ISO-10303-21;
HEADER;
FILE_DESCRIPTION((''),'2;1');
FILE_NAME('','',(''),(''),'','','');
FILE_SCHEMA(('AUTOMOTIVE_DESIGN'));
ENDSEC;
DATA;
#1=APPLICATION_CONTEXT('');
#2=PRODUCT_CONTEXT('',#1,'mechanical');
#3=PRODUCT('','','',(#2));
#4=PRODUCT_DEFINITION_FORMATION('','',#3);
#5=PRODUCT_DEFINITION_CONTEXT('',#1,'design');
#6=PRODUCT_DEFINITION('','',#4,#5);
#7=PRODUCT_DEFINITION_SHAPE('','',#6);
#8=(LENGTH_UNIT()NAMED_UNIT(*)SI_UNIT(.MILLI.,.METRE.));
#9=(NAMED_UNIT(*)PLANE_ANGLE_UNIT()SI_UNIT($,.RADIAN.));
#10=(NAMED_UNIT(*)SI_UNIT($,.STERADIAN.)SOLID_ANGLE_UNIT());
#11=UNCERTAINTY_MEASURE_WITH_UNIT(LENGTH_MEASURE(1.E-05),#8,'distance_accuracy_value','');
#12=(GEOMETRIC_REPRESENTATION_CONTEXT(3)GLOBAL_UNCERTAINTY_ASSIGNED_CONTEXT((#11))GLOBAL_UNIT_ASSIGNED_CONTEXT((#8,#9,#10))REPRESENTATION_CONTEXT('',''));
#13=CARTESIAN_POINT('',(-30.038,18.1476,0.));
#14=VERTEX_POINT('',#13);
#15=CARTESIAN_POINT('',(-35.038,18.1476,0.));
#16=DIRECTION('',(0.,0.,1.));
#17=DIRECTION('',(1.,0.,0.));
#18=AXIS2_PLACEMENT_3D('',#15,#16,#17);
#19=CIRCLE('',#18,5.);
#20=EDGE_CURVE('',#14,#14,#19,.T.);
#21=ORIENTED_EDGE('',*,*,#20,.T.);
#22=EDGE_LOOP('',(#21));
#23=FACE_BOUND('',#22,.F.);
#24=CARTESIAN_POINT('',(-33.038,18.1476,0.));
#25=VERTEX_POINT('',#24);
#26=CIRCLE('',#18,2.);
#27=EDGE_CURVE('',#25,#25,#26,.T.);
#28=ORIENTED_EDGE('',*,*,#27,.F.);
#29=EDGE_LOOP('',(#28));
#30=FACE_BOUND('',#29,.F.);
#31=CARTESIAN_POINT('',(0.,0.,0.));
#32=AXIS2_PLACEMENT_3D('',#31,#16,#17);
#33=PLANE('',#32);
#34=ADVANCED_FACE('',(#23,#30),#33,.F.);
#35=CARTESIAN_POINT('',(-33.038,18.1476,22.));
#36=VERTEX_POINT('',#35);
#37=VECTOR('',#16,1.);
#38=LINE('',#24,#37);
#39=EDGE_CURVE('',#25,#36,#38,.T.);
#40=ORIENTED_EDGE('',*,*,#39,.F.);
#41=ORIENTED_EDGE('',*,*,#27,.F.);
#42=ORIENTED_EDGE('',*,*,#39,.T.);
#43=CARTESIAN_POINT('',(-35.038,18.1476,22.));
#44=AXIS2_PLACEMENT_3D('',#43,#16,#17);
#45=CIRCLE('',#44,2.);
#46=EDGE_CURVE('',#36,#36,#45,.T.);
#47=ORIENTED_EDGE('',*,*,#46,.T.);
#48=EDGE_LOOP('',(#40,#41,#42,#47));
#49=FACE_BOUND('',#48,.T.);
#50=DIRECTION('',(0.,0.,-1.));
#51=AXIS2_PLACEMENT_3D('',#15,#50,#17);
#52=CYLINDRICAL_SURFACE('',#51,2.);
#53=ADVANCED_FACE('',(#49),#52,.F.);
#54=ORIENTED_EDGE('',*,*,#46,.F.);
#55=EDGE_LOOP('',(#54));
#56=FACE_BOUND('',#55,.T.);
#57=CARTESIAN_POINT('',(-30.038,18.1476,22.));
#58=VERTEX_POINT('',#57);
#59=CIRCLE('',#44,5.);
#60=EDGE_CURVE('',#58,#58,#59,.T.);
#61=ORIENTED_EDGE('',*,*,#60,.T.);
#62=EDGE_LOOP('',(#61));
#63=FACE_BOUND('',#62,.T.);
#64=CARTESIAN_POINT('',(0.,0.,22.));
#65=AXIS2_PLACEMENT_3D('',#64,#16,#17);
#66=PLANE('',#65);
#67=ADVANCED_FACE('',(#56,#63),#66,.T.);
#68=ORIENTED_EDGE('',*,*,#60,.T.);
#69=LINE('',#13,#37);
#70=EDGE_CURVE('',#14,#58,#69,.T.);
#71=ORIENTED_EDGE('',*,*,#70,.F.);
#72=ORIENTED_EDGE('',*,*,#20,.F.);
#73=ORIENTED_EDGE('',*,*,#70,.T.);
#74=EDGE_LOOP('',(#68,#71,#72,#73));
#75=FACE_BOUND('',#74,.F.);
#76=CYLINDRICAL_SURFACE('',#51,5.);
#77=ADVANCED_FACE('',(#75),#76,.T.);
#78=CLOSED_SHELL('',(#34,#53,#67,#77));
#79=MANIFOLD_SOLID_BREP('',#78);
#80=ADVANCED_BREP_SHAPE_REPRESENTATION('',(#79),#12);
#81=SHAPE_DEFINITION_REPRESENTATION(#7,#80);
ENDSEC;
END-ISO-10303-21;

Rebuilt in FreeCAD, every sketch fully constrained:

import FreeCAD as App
import Part
import Sketcher

doc = App.newDocument("Part")
params = doc.addObject("Spreadsheet::Sheet", "Params")
for row, (alias, value) in enumerate([
    ("sketch1_diameter", "10 mm"),
    ("sketch1_diameter2", "4 mm"),
    ("pad1_length", "22 mm"),
], start=1):
    params.set(f"A{row}", alias)
    params.set(f"B{row}", "=" + value)
    params.setAlias(f"B{row}", alias)

body = doc.addObject("PartDesign::Body", "Body")

sketch1 = body.newObject("Sketcher::SketchObject", "Sketch")
sketch1.AttachmentSupport = (doc.getObject("XY_Plane"), [""])
sketch1.MapMode = "FlatFace"
sketch1.addGeometry([
    Part.Circle(App.Vector(-35.038, 18.1476, 0), App.Vector(0, 0, 1), 5),
    Part.Circle(App.Vector(-35.038, 18.1476, 0), App.Vector(0, 0, 1), 2),
], False)
sketch1.addConstraint([
    Sketcher.Constraint("Coincident", 1, 3, 0, 3),
    Sketcher.Constraint("Diameter", 0, 10.0),
    Sketcher.Constraint("Diameter", 1, 4.0),
    Sketcher.Constraint("DistanceX", 0, 3, -1, 1, 35.038),
    Sketcher.Constraint("DistanceY", -1, 1, 0, 3, 18.1476),
])
sketch1.setExpression("Constraints[1]", "Params.sketch1_diameter")
sketch1.setExpression("Constraints[2]", "Params.sketch1_diameter2")
pad1 = body.newObject("PartDesign::Pad", "Pad")
pad1.Profile = sketch1
pad1.setExpression("Length", "Params.pad1_length")

doc.recompute()
